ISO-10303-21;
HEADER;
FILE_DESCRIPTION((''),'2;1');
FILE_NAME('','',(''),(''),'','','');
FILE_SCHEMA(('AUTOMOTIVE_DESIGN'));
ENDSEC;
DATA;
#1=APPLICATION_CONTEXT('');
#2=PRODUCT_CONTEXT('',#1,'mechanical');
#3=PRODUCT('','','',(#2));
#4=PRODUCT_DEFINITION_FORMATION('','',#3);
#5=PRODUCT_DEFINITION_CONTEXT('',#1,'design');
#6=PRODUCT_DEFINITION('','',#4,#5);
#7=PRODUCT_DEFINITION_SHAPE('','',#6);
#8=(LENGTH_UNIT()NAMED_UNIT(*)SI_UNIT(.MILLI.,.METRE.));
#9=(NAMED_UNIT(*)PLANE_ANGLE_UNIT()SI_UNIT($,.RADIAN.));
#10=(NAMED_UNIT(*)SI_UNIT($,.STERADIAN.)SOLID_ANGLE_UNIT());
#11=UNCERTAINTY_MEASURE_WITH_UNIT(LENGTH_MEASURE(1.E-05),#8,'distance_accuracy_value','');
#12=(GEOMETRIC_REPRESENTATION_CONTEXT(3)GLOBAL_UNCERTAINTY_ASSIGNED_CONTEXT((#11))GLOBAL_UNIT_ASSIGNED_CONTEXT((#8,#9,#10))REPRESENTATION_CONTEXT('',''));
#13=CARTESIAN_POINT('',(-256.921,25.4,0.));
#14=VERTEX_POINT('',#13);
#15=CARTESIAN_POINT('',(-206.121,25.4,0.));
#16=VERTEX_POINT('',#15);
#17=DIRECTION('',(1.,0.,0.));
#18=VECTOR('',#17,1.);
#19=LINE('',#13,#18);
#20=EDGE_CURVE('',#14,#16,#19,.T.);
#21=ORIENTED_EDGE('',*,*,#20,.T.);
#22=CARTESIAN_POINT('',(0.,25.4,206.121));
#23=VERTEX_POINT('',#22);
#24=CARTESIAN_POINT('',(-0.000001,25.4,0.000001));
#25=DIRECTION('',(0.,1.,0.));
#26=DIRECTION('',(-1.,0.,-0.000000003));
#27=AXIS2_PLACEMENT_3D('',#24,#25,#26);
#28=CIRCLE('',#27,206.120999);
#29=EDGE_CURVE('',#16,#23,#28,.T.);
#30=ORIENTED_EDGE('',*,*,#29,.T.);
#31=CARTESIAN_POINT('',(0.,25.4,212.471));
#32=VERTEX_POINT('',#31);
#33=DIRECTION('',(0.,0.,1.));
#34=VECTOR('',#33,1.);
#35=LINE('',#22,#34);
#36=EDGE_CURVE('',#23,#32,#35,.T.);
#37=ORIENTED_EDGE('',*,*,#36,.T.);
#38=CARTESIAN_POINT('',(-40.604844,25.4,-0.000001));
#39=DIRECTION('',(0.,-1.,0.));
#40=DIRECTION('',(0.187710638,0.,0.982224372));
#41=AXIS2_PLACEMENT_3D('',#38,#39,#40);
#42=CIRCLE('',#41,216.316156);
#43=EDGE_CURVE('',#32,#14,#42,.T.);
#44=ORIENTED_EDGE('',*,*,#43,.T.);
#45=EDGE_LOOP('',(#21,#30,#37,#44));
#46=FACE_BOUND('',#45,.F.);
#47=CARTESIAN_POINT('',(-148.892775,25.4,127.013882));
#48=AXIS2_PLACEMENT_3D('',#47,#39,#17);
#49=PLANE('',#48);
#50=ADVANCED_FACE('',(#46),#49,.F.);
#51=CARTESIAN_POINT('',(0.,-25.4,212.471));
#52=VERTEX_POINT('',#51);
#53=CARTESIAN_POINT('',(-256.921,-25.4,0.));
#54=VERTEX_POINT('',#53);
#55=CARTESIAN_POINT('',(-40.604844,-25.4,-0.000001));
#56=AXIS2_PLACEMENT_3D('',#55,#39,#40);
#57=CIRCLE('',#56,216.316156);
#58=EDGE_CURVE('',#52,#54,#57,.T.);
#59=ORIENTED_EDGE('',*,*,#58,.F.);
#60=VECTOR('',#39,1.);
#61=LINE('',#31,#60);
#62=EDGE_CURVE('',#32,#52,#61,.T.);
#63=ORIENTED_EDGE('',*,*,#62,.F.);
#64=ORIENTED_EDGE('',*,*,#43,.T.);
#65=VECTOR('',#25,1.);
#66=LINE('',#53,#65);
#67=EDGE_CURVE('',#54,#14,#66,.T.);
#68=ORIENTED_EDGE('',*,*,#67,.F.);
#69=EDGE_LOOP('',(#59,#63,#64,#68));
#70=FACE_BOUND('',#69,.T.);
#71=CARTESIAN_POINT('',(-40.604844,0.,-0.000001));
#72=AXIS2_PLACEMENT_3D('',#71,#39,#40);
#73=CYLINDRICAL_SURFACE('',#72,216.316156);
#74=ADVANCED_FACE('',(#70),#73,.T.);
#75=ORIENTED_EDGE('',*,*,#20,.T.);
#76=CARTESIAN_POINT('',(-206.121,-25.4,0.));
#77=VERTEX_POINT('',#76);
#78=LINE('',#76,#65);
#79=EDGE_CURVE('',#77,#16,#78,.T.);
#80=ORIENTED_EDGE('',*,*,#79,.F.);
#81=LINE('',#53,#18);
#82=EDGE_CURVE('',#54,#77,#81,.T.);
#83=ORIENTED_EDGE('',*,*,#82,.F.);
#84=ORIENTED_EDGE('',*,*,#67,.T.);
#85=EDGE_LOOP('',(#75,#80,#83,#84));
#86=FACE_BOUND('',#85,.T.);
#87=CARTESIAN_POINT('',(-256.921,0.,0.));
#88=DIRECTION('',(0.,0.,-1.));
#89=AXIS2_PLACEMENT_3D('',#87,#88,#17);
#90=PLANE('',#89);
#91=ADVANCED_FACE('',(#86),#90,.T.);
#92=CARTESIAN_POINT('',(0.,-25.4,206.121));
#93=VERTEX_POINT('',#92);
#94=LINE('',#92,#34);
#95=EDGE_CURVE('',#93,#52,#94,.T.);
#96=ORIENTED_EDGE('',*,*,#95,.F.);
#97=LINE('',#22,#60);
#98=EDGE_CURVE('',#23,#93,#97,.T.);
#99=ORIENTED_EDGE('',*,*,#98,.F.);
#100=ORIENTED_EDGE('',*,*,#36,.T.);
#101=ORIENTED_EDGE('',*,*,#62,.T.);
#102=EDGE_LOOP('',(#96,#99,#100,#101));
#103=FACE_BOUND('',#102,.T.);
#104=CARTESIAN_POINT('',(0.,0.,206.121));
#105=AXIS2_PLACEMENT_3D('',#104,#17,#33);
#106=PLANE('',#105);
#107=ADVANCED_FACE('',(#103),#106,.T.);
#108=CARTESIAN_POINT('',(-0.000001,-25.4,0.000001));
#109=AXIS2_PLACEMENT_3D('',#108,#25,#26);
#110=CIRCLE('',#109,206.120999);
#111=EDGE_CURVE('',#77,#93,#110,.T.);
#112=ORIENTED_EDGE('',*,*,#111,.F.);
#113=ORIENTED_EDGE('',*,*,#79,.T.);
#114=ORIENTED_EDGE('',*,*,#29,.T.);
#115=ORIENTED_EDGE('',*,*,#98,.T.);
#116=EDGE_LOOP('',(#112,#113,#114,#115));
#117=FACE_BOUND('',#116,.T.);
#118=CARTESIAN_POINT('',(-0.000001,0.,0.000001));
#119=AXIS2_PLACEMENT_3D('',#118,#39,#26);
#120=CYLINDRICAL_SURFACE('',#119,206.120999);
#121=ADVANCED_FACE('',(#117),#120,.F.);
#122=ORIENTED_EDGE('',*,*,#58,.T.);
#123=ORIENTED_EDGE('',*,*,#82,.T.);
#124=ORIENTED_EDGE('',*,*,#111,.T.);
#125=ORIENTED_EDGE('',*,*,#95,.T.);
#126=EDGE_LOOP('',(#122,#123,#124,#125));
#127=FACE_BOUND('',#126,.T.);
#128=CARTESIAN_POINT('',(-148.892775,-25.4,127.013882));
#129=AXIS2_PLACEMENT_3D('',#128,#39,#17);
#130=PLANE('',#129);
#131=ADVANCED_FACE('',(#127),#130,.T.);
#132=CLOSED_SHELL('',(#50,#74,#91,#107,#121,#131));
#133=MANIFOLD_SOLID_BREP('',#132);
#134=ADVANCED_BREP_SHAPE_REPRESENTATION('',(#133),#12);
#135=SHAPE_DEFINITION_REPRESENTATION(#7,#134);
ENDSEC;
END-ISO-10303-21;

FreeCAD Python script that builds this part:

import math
import FreeCAD as App
import Part
import Sketcher
Q = App.Units.Quantity

doc = App.newDocument("Part")
body = doc.addObject("PartDesign::Body", "Body")

# Sketch on XZ plane
sketch1 = body.newObject("Sketcher::SketchObject", "Sketch")
sketch1.AttachmentSupport = (doc.getObject("XZ_Plane"), [""])
sketch1.MapMode = "FlatFace"
sketch1.addGeometry([
    Part.ArcOfCircle(Part.Circle(App.Vector(0, 0, 0), App.Vector(0, 0, 1), 206), math.radians(90), math.radians(180)),
    Part.LineSegment(App.Vector(0, 206, 0), App.Vector(0, 212, 0)),
    Part.ArcOfCircle(Part.Circle(App.Vector(-41, 0, 0), App.Vector(0, 0, 1), 216), math.radians(79), math.radians(180)),
    Part.LineSegment(App.Vector(-257, 0, 0), App.Vector(-206, 0, 0)),
], False)
sketch1.addConstraint([
    Sketcher.Constraint("Coincident", 0, 1, 1, 1),
    Sketcher.Constraint("Coincident", 1, 2, 2, 1),
    Sketcher.Constraint("Coincident", 2, 2, 3, 1),
    Sketcher.Constraint("Coincident", 3, 2, 0, 2),
    Sketcher.Constraint("Vertical", 1),
    Sketcher.Constraint("Horizontal", 3),
    Sketcher.Constraint("Coincident", 0, 3, -1, 1),
    Sketcher.Constraint("PointOnObject", 2, 3, -1),
    Sketcher.Constraint("PointOnObject", 0, 1, -2),
    Sketcher.Constraint("PointOnObject", 2, 2, -1),
    Sketcher.Constraint("DistanceX", 3, 1, 3, 2, Q("2 in")),
    Sketcher.Constraint("Radius", 0, Q("8.115 in")),
    Sketcher.Constraint("DistanceY", 1, 1, 1, 2, Q("0.25 in")),
])
pad1 = body.newObject("PartDesign::Pad", "Pad")
pad1.Profile = sketch1
pad1.Type = "TwoLengths"
pad1.Length = Q("1 in")
pad1.Length2 = Q("1 in")

doc.recompute()
